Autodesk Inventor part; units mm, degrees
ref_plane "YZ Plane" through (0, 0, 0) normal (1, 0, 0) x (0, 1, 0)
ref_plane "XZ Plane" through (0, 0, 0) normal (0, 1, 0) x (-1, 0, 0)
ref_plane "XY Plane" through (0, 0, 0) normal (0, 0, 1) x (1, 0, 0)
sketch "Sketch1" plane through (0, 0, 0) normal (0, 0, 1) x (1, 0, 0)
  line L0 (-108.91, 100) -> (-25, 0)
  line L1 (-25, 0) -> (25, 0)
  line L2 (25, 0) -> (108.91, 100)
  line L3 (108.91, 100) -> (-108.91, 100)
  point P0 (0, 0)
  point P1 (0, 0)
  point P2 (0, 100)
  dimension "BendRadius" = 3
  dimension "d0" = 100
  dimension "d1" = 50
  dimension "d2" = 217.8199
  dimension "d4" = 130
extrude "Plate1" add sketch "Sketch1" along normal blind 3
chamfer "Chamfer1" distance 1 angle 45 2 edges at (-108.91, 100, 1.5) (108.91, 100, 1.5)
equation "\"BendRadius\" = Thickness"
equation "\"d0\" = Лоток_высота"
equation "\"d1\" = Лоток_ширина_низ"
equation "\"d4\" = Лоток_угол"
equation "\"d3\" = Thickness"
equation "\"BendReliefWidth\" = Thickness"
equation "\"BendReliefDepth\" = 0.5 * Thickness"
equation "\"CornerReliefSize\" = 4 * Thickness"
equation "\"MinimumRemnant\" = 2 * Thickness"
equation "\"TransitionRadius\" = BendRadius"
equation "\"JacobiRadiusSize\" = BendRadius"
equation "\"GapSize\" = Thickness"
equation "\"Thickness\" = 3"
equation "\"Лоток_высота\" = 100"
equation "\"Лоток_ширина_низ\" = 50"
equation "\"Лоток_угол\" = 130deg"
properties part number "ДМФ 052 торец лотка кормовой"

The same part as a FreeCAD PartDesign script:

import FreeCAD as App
import Part
import Sketcher
from FreeCAD import Vector
Q = App.Units.Quantity


def edges_at(feature, points):
    """Names of the edges that pass closest to the given points."""
    edges = feature.Shape.Edges
    near = lambda p: min(range(len(edges)), key=lambda i: edges[i].distToShape(Part.Vertex(*p))[0])
    return sorted({f"Edge{near(p) + 1}" for p in points})

doc = App.newDocument("Part")
body = doc.addObject("PartDesign::Body", "Body")

# Sketch on XY plane
sketch1 = body.newObject("Sketcher::SketchObject", "Sketch")
sketch1.AttachmentSupport = (doc.getObject("XY_Plane"), [""])
sketch1.MapMode = "FlatFace"
sketch1.addGeometry([
    Part.LineSegment(Vector(108.91, 100, 0), Vector(-108.91, 100, 0)),
    Part.LineSegment(Vector(-108.91, 100, 0), Vector(-25, 0, 0)),
    Part.LineSegment(Vector(-25, 0, 0), Vector(25, 0, 0)),
    Part.LineSegment(Vector(25, 0, 0), Vector(108.91, 100, 0)),
], False)
sketch1.addConstraint([
    Sketcher.Constraint("Coincident", 0, 2, 1, 1),
    Sketcher.Constraint("Coincident", 1, 2, 2, 1),
    Sketcher.Constraint("Coincident", 2, 2, 3, 1),
    Sketcher.Constraint("Coincident", 3, 2, 0, 1),
    Sketcher.Constraint("Horizontal", 0),
    Sketcher.Constraint("Horizontal", 2),
    Sketcher.Constraint("Symmetric", 1, 2, 2, 2, -1, 1),
    Sketcher.Constraint("Equal", 1, 3),
    Sketcher.Constraint("DistanceX", 2, 1, 2, 2, 50.0),
    Sketcher.Constraint("Angle", 1, Q("-50 deg")),
    Sketcher.Constraint("DistanceY", -1, 1, 0, 2, 100.0),
])
pad1 = body.newObject("PartDesign::Pad", "Pad")
pad1.Profile = sketch1
pad1.Length = 3
doc.recompute()

chamfer = body.newObject("PartDesign::Chamfer", "Chamfer")
chamfer.Base = (pad1, edges_at(pad1, [(-108.91, 100, 1.5), (108.91, 100, 1.5)]))
chamfer.Size = 1

doc.recompute()
